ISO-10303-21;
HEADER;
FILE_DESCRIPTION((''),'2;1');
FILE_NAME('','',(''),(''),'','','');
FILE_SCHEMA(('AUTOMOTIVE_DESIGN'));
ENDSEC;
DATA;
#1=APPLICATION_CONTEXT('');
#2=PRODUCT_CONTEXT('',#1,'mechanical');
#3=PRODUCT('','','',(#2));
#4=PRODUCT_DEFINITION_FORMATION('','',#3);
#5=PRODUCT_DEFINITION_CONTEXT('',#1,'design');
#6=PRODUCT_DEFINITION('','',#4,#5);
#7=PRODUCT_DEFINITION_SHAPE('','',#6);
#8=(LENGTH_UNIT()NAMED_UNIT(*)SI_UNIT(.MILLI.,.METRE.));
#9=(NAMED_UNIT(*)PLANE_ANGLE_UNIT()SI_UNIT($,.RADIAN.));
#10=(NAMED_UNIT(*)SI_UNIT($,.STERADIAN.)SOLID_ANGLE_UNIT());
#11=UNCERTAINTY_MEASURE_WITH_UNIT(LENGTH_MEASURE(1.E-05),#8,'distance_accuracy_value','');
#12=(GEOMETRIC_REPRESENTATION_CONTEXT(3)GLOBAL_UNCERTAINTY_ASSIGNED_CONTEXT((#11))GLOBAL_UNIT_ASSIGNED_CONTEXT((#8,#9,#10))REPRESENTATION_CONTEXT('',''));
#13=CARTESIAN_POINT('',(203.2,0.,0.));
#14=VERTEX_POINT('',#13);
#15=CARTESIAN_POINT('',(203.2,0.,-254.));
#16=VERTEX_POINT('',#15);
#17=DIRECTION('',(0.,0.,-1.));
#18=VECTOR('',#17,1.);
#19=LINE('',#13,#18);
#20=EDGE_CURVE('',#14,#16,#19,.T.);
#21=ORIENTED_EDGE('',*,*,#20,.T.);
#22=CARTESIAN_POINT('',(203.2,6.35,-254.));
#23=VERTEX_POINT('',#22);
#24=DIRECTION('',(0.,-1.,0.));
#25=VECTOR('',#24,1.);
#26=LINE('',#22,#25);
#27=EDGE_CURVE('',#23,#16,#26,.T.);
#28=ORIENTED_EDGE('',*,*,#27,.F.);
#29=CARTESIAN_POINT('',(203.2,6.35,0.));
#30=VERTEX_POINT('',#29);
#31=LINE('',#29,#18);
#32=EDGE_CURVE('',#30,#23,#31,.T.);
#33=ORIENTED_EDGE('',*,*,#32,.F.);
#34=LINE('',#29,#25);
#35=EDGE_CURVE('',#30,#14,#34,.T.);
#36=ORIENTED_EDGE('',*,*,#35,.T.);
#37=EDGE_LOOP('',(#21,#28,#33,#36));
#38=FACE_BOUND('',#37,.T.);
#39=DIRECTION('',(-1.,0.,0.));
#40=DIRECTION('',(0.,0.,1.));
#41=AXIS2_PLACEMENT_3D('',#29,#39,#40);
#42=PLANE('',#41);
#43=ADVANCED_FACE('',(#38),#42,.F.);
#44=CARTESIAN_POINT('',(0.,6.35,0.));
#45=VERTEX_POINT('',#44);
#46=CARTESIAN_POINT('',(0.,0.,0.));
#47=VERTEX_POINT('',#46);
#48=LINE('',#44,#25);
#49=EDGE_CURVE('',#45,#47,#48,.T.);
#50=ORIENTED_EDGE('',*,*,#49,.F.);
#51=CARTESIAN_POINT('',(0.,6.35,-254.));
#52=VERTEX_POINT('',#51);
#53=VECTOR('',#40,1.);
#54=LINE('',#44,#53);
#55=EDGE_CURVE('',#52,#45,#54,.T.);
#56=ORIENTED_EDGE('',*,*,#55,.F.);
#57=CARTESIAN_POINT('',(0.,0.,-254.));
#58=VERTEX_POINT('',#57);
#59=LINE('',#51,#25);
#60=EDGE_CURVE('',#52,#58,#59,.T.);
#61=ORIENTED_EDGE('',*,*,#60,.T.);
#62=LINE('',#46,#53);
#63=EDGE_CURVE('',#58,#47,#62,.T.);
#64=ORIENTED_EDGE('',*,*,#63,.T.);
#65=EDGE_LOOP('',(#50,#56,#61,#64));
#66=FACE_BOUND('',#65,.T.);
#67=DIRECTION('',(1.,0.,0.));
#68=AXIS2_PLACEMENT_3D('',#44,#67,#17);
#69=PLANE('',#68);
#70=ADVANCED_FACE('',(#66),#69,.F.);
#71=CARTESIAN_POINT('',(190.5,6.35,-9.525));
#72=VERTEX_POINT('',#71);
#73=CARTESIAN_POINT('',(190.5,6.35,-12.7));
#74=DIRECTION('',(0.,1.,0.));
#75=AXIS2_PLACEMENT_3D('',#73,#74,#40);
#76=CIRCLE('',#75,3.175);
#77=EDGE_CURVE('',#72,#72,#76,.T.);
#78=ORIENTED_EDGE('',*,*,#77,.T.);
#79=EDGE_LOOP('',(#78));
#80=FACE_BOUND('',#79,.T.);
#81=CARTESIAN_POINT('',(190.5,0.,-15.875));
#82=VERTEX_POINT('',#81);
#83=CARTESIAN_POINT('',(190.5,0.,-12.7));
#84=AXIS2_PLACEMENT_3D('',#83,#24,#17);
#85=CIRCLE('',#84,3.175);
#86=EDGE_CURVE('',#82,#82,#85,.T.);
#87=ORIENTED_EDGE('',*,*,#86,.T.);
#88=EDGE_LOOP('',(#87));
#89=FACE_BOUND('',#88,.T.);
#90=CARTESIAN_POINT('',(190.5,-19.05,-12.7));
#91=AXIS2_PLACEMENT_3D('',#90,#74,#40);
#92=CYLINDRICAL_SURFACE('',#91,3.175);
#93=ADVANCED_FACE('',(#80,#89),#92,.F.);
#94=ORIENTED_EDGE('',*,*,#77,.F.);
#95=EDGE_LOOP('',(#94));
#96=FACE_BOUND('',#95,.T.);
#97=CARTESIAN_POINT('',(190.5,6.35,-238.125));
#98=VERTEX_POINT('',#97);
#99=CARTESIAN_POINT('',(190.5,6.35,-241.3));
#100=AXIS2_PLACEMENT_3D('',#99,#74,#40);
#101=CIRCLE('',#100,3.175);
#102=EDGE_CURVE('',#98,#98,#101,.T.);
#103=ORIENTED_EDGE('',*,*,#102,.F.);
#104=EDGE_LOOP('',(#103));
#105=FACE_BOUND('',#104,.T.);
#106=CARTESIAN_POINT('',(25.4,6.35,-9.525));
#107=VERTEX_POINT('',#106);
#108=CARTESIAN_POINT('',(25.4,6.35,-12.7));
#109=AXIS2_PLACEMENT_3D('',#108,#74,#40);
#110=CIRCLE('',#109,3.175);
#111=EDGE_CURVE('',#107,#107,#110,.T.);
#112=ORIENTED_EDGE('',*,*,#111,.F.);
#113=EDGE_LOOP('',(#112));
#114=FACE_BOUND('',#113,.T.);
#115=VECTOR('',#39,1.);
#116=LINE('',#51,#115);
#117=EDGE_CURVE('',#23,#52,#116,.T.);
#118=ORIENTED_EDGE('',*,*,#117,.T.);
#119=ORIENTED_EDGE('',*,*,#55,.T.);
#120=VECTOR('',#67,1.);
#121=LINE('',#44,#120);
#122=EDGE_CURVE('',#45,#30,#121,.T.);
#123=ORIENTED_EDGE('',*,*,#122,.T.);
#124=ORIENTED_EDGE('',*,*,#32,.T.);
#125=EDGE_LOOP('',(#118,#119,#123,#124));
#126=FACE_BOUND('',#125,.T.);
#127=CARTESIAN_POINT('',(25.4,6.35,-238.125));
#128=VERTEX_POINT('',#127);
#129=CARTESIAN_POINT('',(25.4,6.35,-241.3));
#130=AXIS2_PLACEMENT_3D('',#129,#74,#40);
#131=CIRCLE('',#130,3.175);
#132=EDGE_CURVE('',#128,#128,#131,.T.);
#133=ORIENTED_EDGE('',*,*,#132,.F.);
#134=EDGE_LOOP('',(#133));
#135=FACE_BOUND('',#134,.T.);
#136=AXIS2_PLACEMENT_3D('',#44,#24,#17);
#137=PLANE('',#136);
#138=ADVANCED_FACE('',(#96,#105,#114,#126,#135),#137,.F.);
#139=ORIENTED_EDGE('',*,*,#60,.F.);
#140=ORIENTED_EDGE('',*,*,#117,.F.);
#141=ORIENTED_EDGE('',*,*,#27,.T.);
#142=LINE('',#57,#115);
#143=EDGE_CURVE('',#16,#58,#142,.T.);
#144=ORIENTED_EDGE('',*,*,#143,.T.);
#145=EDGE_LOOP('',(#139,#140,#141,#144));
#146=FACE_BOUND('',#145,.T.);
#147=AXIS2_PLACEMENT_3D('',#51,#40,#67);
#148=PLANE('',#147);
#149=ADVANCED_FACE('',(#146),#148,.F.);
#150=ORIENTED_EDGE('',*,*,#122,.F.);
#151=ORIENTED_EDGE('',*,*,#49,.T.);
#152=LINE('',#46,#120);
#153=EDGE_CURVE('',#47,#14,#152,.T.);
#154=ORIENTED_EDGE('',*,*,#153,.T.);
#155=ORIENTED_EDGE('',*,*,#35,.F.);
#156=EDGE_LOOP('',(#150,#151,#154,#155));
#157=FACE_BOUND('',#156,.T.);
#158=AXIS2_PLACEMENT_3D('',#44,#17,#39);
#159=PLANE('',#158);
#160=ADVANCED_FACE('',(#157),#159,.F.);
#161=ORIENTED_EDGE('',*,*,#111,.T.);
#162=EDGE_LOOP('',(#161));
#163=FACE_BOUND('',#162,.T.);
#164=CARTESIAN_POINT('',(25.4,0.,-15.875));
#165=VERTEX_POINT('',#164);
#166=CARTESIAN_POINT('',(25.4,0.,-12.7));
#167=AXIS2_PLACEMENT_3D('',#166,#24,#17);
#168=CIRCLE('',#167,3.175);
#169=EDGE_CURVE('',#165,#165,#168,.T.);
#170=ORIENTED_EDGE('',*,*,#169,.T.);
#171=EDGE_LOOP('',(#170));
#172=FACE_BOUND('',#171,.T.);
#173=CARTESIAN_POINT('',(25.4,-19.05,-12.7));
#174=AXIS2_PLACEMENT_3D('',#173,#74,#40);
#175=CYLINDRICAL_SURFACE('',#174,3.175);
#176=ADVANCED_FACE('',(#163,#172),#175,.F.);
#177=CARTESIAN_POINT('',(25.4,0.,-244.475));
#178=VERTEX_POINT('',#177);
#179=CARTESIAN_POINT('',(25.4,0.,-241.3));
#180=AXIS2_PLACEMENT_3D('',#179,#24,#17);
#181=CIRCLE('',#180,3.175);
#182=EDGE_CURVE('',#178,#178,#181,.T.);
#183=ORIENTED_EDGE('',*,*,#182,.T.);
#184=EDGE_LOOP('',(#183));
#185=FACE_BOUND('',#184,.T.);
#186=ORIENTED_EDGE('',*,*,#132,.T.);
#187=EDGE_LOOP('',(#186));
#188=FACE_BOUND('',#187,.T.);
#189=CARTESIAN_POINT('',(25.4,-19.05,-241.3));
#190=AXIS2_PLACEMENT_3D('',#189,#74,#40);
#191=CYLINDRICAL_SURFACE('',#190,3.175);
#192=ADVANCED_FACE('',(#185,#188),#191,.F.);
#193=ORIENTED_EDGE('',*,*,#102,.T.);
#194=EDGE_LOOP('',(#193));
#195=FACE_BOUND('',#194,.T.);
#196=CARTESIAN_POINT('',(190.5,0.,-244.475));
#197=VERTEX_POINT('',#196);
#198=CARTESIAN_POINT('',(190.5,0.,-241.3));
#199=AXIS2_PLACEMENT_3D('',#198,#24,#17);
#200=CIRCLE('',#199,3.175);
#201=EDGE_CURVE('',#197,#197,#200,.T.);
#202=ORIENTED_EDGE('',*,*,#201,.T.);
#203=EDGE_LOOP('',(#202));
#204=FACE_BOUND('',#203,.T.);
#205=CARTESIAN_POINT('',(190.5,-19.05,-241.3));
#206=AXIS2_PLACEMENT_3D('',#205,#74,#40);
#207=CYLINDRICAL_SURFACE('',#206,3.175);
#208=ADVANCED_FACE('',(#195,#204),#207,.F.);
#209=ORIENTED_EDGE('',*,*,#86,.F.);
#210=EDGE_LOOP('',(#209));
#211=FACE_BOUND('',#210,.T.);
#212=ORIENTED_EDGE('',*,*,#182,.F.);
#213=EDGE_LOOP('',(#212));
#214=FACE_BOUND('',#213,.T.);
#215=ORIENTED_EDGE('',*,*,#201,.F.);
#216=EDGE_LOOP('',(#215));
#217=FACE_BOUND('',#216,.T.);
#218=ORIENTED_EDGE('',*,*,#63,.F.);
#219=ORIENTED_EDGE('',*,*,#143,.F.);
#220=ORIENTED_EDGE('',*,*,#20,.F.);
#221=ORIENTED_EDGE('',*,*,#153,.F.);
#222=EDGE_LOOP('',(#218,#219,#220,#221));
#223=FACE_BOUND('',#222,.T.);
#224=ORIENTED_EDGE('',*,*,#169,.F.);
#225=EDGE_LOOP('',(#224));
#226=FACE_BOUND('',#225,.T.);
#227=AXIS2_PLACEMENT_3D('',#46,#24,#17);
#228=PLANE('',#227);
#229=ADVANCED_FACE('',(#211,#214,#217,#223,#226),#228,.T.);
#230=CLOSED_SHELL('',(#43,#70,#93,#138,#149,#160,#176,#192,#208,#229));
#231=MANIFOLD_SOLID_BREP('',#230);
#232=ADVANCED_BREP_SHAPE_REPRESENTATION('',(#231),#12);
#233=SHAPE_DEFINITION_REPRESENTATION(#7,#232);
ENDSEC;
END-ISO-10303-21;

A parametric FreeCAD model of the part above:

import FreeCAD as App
import Part
import Sketcher
from FreeCAD import Vector
Q = App.Units.Quantity


def add_polygon(sketch, points):
    """Adds a closed chain of lines whose ends are joined by coincident constraints."""
    first, n = sketch.GeometryCount, len(points)
    for a, b in zip(points, points[1:] + points[:1]):
        sketch.addGeometry(Part.LineSegment(App.Vector(*a, 0), App.Vector(*b, 0)), False)
    for i in range(n):
        sketch.addConstraint(Sketcher.Constraint("Coincident", first + i, 2, first + (i + 1) % n, 1))

doc = App.newDocument("Part")
body = doc.addObject("PartDesign::Body", "Body")

# Sketch on XZ plane
sketch1 = body.newObject("Sketcher::SketchObject", "Sketch")
sketch1.AttachmentSupport = (doc.getObject("XZ_Plane"), [""])
sketch1.MapMode = "FlatFace"
add_polygon(sketch1, [(0, -254), (0, 0), (203, 0), (203, -254)])  # lines 0-3
sketch1.addConstraint([
    Sketcher.Constraint("Vertical", 0),
    Sketcher.Constraint("Horizontal", 1),
    Sketcher.Constraint("Vertical", 2),
    Sketcher.Constraint("Horizontal", 3),
    Sketcher.Constraint("Coincident", 0, 2, -1, 1),
    Sketcher.Constraint("DistanceX", 1, 1, 1, 2, Q("8 in")),
    Sketcher.Constraint("DistanceY", 0, 1, 0, 2, Q("10 in")),
])
pad1 = body.newObject("PartDesign::Pad", "Pad")
pad1.Profile = sketch1
pad1.Length = Q("0.25 in")
pad1.Reversed = True

# Sketch on XZ plane
sketch2 = body.newObject("Sketcher::SketchObject", "Sketch001")
sketch2.AttachmentSupport = (doc.getObject("XZ_Plane"), [""])
sketch2.MapMode = "FlatFace"
sketch2.AttachmentOffset = App.Placement(Vector(0, 0, -0.25 * 25.4), App.Rotation())
sketch2.addGeometry([
    Part.Circle(Vector(25.4, -241.3, 0), Vector(0, 0, 1), 3.2),
    Part.Circle(Vector(25.4, -12.7, 0), Vector(0, 0, 1), 3.2),
    Part.Circle(Vector(190.5, -12.7, 0), Vector(0, 0, 1), 3.2),
    Part.Circle(Vector(190.5, -241.3, 0), Vector(0, 0, 1), 3.2),
], False)
sketch2.addConstraint([
    Sketcher.Constraint("Equal", 0, 1),
    Sketcher.Constraint("Equal", 1, 2),
    Sketcher.Constraint("Equal", 2, 3),
    Sketcher.Constraint("Horizontal", 1, 3, 2, 3),
    Sketcher.Constraint("Horizontal", 0, 3, 3, 3),
    Sketcher.Constraint("Vertical", 0, 3, 1, 3),
    Sketcher.Constraint("Vertical", 2, 3, 3, 3),
    Sketcher.Constraint("Diameter", 0, Q("0.25 in")),
    Sketcher.Constraint("DistanceX", -1, 1, 0, 3, Q("1 in")),
    Sketcher.Constraint("DistanceY", 0, 3, 1, 3, Q("9 in")),
    Sketcher.Constraint("DistanceY", 0, 3, -1, 1, Q("9.5 in")),
    Sketcher.Constraint("DistanceX", -1, 1, 2, 3, Q("7.5 in")),
])
pocket1 = body.newObject("PartDesign::Pocket", "Pocket")
pocket1.Profile = sketch2
pocket1.Length = Q("1 in")
pocket1.Reversed = True

doc.recompute()
